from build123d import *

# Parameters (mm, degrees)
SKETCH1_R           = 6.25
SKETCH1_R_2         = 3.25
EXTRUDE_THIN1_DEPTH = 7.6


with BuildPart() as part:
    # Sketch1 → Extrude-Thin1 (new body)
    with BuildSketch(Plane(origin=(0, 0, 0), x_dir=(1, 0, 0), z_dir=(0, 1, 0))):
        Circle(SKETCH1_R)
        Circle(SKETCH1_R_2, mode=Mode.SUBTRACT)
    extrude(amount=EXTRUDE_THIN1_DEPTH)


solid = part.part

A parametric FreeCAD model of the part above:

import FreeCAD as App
import Part
import Sketcher
from FreeCAD import Vector
Q = App.Units.Quantity

doc = App.newDocument("Part")
body = doc.addObject("PartDesign::Body", "Body")

sketch1 = doc.addObject("Sketcher::SketchObject", "Sketch")
body.addObject(sketch1)
sketch1.AttachmentSupport = (doc.XZ_Plane, [""])
sketch1.MapMode = "FlatFace"
sketch1.addGeometry(Part.Circle(Vector(0, 0, 0), Vector(0, 0, 1), 6.25), False)
sketch1.addGeometry(Part.Circle(Vector(0, 0, 0), Vector(0, 0, 1), 3.25), False)
sketch1.addConstraint(Sketcher.Constraint("Coincident", 0, 3, -1, 1))
sketch1.addConstraint(Sketcher.Constraint("Coincident", 1, 3, -1, 1))
sketch1.addConstraint(Sketcher.Constraint("Diameter", 0, Q("12.5 mm")))
sketch1.addConstraint(Sketcher.Constraint("Diameter", 1, Q("6.5 mm")))
pad1 = doc.addObject("PartDesign::Pad", "Pad")
body.addObject(pad1)
pad1.Profile = sketch1
pad1.Length = 7.6
pad1.Reversed = True

doc.recompute()
